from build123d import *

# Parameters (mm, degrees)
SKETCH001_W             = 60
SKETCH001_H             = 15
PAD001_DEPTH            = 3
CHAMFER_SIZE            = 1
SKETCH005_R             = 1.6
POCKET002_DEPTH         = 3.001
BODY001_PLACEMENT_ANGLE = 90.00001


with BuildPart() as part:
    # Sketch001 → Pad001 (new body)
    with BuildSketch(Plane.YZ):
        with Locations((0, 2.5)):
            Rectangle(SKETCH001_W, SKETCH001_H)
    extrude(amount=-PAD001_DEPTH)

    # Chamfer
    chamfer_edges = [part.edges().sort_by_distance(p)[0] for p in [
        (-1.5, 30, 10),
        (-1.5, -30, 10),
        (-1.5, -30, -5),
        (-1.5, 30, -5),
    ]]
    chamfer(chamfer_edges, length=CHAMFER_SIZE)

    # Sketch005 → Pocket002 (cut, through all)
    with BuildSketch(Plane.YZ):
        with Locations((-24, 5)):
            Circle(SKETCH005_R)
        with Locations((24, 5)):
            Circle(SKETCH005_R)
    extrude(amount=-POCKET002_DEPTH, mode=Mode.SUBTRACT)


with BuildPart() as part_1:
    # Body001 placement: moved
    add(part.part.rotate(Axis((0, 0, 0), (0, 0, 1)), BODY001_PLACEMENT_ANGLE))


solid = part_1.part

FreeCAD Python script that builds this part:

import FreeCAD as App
import Part
import Sketcher
from FreeCAD import Vector


def edges_at(feature, points):
    """Names of the edges that pass closest to the given points."""
    edges = feature.Shape.Edges
    near = lambda p: min(range(len(edges)), key=lambda i: edges[i].distToShape(Part.Vertex(*p))[0])
    return sorted({f"Edge{near(p) + 1}" for p in points})

doc = App.newDocument("Part")
body = doc.addObject("PartDesign::Body", "Body")

# Sketch on YZ plane
sketch1 = body.newObject("Sketcher::SketchObject", "Sketch")
sketch1.AttachmentSupport = (doc.getObject("YZ_Plane"), [""])
sketch1.MapMode = "FlatFace"
sketch1.addGeometry([
    Part.LineSegment(Vector(-30, 10, 0), Vector(-30, -5, 0)),
    Part.LineSegment(Vector(-30, -5, 0), Vector(30, -5, 0)),
    Part.LineSegment(Vector(30, -5, 0), Vector(30, 10, 0)),
    Part.LineSegment(Vector(30, 10, 0), Vector(-30, 10, 0)),
], False)
sketch1.addConstraint([
    Sketcher.Constraint("Coincident", 0, 2, 1, 1),
    Sketcher.Constraint("Coincident", 1, 2, 2, 1),
    Sketcher.Constraint("Coincident", 2, 2, 3, 1),
    Sketcher.Constraint("Coincident", 3, 2, 0, 1),
    Sketcher.Constraint("Vertical", 0),
    Sketcher.Constraint("Horizontal", 1),
    Sketcher.Constraint("Vertical", 2),
    Sketcher.Constraint("Horizontal", 3),
    Sketcher.Constraint("DistanceX", 1, 1, 1, 2, 60.0),
    Sketcher.Constraint("DistanceY", 0, 2, 0, 1, 15.0),
    Sketcher.Constraint("DistanceX", 0, 2, -1, 1, 30.0),
    Sketcher.Constraint("DistanceY", 0, 2, -1, 1, 5.0),
])
pad1 = body.newObject("PartDesign::Pad", "Pad")
pad1.Profile = sketch1
pad1.Length = 3
pad1.Reversed = True
doc.recompute()

chamfer = body.newObject("PartDesign::Chamfer", "Chamfer")
chamfer.Base = (pad1, edges_at(pad1, [
    (-1.5, 30, 10),
    (-1.5, -30, 10),
    (-1.5, -30, -5),
    (-1.5, 30, -5),
]))
chamfer.Size = 1

# Sketch on YZ plane
sketch2 = body.newObject("Sketcher::SketchObject", "Sketch001")
sketch2.AttachmentSupport = (doc.getObject("YZ_Plane"), [""])
sketch2.MapMode = "FlatFace"
sketch2.addGeometry([
    Part.Circle(Vector(-24, 5, 0), Vector(0, 0, 1), 1.6),
    Part.Circle(Vector(24, 5, 0), Vector(0, 0, 1), 1.6),
], False)
sketch2.addConstraint([
    Sketcher.Constraint("Equal", 0, 1),
    Sketcher.Constraint("Symmetric", 0, 3, 1, 3, -2),
    Sketcher.Constraint("Diameter", 0, 3.2),
    Sketcher.Constraint("DistanceX", 0, 3, -1, 1, 24.0),
    Sketcher.Constraint("DistanceY", -1, 1, 0, 3, 5.0),
])
pocket1 = body.newObject("PartDesign::Pocket", "Pocket")
pocket1.Profile = sketch2
pocket1.Type = "ThroughAll"
body2 = doc.addObject("PartDesign::Body", "Body001")
doc.recompute()

body.Placement = App.Placement(Vector(0, 0, 0), App.Rotation(Vector(0, 0, 1), 90.00001))
boolean = body2.newObject("PartDesign::Boolean", "Boolean")
boolean.Type = "Fuse"
boolean.addObjects([body])

doc.recompute()
